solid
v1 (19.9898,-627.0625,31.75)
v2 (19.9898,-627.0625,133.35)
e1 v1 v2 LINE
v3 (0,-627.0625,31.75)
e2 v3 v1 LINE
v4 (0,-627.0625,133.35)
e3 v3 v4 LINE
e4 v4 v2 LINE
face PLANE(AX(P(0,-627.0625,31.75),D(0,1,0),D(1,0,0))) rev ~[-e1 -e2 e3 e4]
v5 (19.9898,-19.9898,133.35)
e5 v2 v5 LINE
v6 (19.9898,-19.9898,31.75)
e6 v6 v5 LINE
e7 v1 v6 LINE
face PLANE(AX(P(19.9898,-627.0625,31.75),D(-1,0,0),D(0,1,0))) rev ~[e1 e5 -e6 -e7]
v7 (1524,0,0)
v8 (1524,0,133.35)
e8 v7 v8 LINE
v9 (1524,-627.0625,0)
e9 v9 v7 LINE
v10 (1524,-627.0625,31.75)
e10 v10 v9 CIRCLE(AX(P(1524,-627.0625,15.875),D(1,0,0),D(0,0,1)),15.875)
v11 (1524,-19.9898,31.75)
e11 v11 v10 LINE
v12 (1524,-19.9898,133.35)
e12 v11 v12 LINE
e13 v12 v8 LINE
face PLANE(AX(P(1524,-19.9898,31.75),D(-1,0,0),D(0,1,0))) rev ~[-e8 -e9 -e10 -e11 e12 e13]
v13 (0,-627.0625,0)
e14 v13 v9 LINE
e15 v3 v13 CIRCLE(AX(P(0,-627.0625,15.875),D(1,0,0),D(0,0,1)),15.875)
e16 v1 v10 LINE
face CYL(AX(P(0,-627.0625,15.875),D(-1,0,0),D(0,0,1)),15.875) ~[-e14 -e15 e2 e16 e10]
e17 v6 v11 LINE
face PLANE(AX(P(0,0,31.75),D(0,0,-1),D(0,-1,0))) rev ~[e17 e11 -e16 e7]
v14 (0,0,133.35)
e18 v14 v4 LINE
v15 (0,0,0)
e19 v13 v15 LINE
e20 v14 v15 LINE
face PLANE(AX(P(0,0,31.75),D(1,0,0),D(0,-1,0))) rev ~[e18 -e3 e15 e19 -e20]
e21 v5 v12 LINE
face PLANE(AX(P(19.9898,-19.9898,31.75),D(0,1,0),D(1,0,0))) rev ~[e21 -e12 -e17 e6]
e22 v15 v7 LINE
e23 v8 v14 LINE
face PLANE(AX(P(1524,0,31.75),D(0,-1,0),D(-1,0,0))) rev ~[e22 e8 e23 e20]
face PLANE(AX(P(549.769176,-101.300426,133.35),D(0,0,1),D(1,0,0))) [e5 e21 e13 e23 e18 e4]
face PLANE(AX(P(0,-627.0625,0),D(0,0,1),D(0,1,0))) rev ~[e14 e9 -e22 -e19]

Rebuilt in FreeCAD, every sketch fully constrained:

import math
import FreeCAD as App
import Part
import Sketcher

V = App.Vector
Q = App.Units.Quantity


def add_polygon(sketch, points):
    """Adds a closed chain of lines whose ends are joined by coincident constraints."""
    first, n = sketch.GeometryCount, len(points)
    for a, b in zip(points, points[1:] + points[:1]):
        sketch.addGeometry(Part.LineSegment(App.Vector(*a, 0), App.Vector(*b, 0)), False)
    for i in range(n):
        sketch.addConstraint(Sketcher.Constraint("Coincident", first + i, 2, first + (i + 1) % n, 1))

doc = App.newDocument("Part")
params = doc.addObject("Spreadsheet::Sheet", "Params")
for row, (alias, value) in enumerate([
    ("sketch1_radius", "0.625 in"),
    ("sketch1_width", "24.6875 in"),
    ("pad1_length", "60 in"),
    ("sketch2_width", "60 in"),
    ("sketch2_width2", "59.213 in"),
    ("sketch2_height", "24.6875 in"),
    ("pad2_length", "4 in"),
], start=1):
    params.set(f"A{row}", alias)
    params.set(f"B{row}", "=" + value)
    params.setAlias(f"B{row}", alias)

body = doc.addObject("PartDesign::Body", "Body")

# Sketch on YZ plane
sketch1 = body.newObject("Sketcher::SketchObject", "Sketch")
sketch1.AttachmentSupport = (doc.getObject("YZ_Plane"), [""])
sketch1.MapMode = "FlatFace"
sketch1.addGeometry([
    Part.LineSegment(V(-627, 0, 0), V(0, 0, 0)),
    Part.LineSegment(V(0, 0, 0), V(0, 32, 0)),
    Part.LineSegment(V(0, 32, 0), V(-627, 32, 0)),
    Part.ArcOfCircle(Part.Circle(V(-627, 16, 0), V(0, 0, 1), 16), math.radians(90), math.radians(270)),
], False)
sketch1.addConstraint([
    Sketcher.Constraint("Coincident", 0, 2, 1, 1),
    Sketcher.Constraint("Coincident", 1, 2, 2, 1),
    Sketcher.Constraint("Tangent", 2, 2, 3, 1),
    Sketcher.Constraint("Tangent", 3, 2, 0, 1),
    Sketcher.Constraint("Horizontal", 0),
    Sketcher.Constraint("Vertical", 1),
    Sketcher.Constraint("Horizontal", 2),
    Sketcher.Constraint("Coincident", 0, 2, -1, 1),
    Sketcher.Constraint("Radius", 3, Q("0.625 in")),
    Sketcher.Constraint("DistanceX", 0, 1, 0, 2, Q("24.6875 in")),
])
sketch1.setExpression("Constraints[8]", "Params.sketch1_radius")
sketch1.setExpression("Constraints[9]", "Params.sketch1_width")
pad1 = body.newObject("PartDesign::Pad", "Pad")
pad1.Profile = sketch1
pad1.setExpression("Length", "Params.pad1_length")

# Sketch on XY plane
sketch2 = body.newObject("Sketcher::SketchObject", "Sketch001")
sketch2.AttachmentSupport = (doc.getObject("XY_Plane"), [""])
sketch2.MapMode = "FlatFace"
sketch2.AttachmentOffset = App.Placement(V(0, 0, 1.25 * 25.4), App.Rotation())
add_polygon(sketch2, [(20, -627), (20, -20), (1524, -20), (1524, 0), (0, 0), (0, -627)])  # lines 0-5
sketch2.addConstraint([
    Sketcher.Constraint("Vertical", 0),
    Sketcher.Constraint("Horizontal", 1),
    Sketcher.Constraint("Vertical", 2),
    Sketcher.Constraint("Horizontal", 3),
    Sketcher.Constraint("Vertical", 4),
    Sketcher.Constraint("Horizontal", 5),
    Sketcher.Constraint("Coincident", 3, 2, -1, 1),
    Sketcher.Constraint("Equal", 5, 2),
    Sketcher.Constraint("DistanceX", 3, 2, 3, 1, Q("60 in")),
    Sketcher.Constraint("DistanceX", 1, 1, 1, 2, Q("59.213 in")),
    Sketcher.Constraint("DistanceY", 4, 2, 4, 1, Q("24.6875 in")),
])
sketch2.setExpression("Constraints[14]", "Params.sketch2_width")
sketch2.setExpression("Constraints[15]", "Params.sketch2_width2")
sketch2.setExpression("Constraints[16]", "Params.sketch2_height")
pad2 = body.newObject("PartDesign::Pad", "Pad001")
pad2.Profile = sketch2
pad2.setExpression("Length", "Params.pad2_length")

doc.recompute()
